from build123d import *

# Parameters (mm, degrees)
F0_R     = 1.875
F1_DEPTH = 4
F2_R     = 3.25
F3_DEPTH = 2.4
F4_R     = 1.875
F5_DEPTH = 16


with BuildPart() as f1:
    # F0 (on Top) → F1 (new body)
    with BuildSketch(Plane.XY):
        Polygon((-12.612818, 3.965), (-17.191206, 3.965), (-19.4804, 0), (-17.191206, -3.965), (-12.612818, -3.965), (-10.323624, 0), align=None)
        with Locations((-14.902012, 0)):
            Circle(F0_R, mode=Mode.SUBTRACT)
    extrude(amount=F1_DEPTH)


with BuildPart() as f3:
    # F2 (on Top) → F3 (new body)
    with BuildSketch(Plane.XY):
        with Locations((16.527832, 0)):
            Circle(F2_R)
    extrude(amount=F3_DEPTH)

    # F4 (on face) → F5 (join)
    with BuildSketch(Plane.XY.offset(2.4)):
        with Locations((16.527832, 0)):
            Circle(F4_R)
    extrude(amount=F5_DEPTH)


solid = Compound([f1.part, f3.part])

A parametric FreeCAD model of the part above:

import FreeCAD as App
import Part
import Sketcher
Q = App.Units.Quantity


def add_polygon(sketch, points):
    """Adds a closed chain of lines whose ends are joined by coincident constraints."""
    first, n = sketch.GeometryCount, len(points)
    for a, b in zip(points, points[1:] + points[:1]):
        sketch.addGeometry(Part.LineSegment(App.Vector(*a, 0), App.Vector(*b, 0)), False)
    for i in range(n):
        sketch.addConstraint(Sketcher.Constraint("Coincident", first + i, 2, first + (i + 1) % n, 1))

doc = App.newDocument("Part")
body = doc.addObject("PartDesign::Body", "Body")

# Sketch on XY plane
sketch1 = doc.addObject("Sketcher::SketchObject", "Sketch")
body.addObject(sketch1)
sketch1.AttachmentSupport = (doc.XY_Plane, [""])
sketch1.MapMode = "FlatFace"
add_polygon(sketch1, [(-12.612818, 3.965), (-17.191206, 3.965), (-19.4804, 0), (-17.191206, -3.965), (-12.612818, -3.965), (-10.323624, 0)])  # lines 0-5
sketch1.addGeometry(Part.Circle(App.Vector(-14.902012, 0, 0), App.Vector(0, 0, 1), 1.875), False)  # 6
sketch1.addConstraint([
    Sketcher.Constraint("Horizontal", 0),
    Sketcher.Constraint("Horizontal", 3),
    Sketcher.Constraint("Symmetric", 0, 2, 2, 2, -1),
    Sketcher.Constraint("PointOnObject", 6, 3, -1),
    Sketcher.Constraint("PointOnObject", 1, 2, -1),
    Sketcher.Constraint("PointOnObject", 4, 2, -1),
    Sketcher.Constraint("Parallel", 1, 4),
    Sketcher.Constraint("Parallel", 2, 5),
    Sketcher.Constraint("Diameter", 6, 3.75),
    Sketcher.Constraint("Angle", 1, Q("-120.000002 deg")),
    Sketcher.Constraint("DistanceY", 2, 2, 0, 2, 7.93),
    Sketcher.Constraint("DistanceX", 0, 2, 0, 1, 4.578388),
    Sketcher.Constraint("DistanceX", 1, 2, -1, 1, 19.4804),
    Sketcher.Constraint("DistanceX", 6, 3, -1, 1, 14.902012),
])
pad1 = doc.addObject("PartDesign::Pad", "Pad")
body.addObject(pad1)
pad1.Profile = sketch1
pad1.Length = 4
body2 = doc.addObject("PartDesign::Body", "Body001")

# Sketch on XY plane
sketch2 = doc.addObject("Sketcher::SketchObject", "Sketch001")
body2.addObject(sketch2)
sketch2.AttachmentSupport = (doc.getObject("XY_Plane001"), [""])
sketch2.MapMode = "FlatFace"
sketch2.addGeometry(Part.Circle(App.Vector(16.527832, 0, 0), App.Vector(0, 0, 1), 3.25), False)
sketch2.addConstraint([
    Sketcher.Constraint("PointOnObject", 0, 3, -1),
    Sketcher.Constraint("Diameter", 0, 6.5),
    Sketcher.Constraint("DistanceX", -1, 1, 0, 3, 16.527832),
])
pad2 = doc.addObject("PartDesign::Pad", "Pad001")
body2.addObject(pad2)
pad2.Profile = sketch2
pad2.Length = 2.4

# Sketch on XY plane
sketch3 = doc.addObject("Sketcher::SketchObject", "Sketch002")
body2.addObject(sketch3)
sketch3.AttachmentSupport = (doc.getObject("XY_Plane001"), [""])
sketch3.MapMode = "FlatFace"
sketch3.AttachmentOffset = App.Placement(App.Vector(0, 0, 2.4), App.Rotation())
sketch3.addGeometry(Part.Circle(App.Vector(16.527832, 0, 0), App.Vector(0, 0, 1), 1.875), False)
sketch3.addConstraint([
    Sketcher.Constraint("PointOnObject", 0, 3, -1),
    Sketcher.Constraint("Diameter", 0, 3.75),
    Sketcher.Constraint("DistanceX", -1, 1, 0, 3, 16.527832),
])
pad3 = doc.addObject("PartDesign::Pad", "Pad002")
body2.addObject(pad3)
pad3.Profile = sketch3
pad3.Length = 16

doc.recompute()
